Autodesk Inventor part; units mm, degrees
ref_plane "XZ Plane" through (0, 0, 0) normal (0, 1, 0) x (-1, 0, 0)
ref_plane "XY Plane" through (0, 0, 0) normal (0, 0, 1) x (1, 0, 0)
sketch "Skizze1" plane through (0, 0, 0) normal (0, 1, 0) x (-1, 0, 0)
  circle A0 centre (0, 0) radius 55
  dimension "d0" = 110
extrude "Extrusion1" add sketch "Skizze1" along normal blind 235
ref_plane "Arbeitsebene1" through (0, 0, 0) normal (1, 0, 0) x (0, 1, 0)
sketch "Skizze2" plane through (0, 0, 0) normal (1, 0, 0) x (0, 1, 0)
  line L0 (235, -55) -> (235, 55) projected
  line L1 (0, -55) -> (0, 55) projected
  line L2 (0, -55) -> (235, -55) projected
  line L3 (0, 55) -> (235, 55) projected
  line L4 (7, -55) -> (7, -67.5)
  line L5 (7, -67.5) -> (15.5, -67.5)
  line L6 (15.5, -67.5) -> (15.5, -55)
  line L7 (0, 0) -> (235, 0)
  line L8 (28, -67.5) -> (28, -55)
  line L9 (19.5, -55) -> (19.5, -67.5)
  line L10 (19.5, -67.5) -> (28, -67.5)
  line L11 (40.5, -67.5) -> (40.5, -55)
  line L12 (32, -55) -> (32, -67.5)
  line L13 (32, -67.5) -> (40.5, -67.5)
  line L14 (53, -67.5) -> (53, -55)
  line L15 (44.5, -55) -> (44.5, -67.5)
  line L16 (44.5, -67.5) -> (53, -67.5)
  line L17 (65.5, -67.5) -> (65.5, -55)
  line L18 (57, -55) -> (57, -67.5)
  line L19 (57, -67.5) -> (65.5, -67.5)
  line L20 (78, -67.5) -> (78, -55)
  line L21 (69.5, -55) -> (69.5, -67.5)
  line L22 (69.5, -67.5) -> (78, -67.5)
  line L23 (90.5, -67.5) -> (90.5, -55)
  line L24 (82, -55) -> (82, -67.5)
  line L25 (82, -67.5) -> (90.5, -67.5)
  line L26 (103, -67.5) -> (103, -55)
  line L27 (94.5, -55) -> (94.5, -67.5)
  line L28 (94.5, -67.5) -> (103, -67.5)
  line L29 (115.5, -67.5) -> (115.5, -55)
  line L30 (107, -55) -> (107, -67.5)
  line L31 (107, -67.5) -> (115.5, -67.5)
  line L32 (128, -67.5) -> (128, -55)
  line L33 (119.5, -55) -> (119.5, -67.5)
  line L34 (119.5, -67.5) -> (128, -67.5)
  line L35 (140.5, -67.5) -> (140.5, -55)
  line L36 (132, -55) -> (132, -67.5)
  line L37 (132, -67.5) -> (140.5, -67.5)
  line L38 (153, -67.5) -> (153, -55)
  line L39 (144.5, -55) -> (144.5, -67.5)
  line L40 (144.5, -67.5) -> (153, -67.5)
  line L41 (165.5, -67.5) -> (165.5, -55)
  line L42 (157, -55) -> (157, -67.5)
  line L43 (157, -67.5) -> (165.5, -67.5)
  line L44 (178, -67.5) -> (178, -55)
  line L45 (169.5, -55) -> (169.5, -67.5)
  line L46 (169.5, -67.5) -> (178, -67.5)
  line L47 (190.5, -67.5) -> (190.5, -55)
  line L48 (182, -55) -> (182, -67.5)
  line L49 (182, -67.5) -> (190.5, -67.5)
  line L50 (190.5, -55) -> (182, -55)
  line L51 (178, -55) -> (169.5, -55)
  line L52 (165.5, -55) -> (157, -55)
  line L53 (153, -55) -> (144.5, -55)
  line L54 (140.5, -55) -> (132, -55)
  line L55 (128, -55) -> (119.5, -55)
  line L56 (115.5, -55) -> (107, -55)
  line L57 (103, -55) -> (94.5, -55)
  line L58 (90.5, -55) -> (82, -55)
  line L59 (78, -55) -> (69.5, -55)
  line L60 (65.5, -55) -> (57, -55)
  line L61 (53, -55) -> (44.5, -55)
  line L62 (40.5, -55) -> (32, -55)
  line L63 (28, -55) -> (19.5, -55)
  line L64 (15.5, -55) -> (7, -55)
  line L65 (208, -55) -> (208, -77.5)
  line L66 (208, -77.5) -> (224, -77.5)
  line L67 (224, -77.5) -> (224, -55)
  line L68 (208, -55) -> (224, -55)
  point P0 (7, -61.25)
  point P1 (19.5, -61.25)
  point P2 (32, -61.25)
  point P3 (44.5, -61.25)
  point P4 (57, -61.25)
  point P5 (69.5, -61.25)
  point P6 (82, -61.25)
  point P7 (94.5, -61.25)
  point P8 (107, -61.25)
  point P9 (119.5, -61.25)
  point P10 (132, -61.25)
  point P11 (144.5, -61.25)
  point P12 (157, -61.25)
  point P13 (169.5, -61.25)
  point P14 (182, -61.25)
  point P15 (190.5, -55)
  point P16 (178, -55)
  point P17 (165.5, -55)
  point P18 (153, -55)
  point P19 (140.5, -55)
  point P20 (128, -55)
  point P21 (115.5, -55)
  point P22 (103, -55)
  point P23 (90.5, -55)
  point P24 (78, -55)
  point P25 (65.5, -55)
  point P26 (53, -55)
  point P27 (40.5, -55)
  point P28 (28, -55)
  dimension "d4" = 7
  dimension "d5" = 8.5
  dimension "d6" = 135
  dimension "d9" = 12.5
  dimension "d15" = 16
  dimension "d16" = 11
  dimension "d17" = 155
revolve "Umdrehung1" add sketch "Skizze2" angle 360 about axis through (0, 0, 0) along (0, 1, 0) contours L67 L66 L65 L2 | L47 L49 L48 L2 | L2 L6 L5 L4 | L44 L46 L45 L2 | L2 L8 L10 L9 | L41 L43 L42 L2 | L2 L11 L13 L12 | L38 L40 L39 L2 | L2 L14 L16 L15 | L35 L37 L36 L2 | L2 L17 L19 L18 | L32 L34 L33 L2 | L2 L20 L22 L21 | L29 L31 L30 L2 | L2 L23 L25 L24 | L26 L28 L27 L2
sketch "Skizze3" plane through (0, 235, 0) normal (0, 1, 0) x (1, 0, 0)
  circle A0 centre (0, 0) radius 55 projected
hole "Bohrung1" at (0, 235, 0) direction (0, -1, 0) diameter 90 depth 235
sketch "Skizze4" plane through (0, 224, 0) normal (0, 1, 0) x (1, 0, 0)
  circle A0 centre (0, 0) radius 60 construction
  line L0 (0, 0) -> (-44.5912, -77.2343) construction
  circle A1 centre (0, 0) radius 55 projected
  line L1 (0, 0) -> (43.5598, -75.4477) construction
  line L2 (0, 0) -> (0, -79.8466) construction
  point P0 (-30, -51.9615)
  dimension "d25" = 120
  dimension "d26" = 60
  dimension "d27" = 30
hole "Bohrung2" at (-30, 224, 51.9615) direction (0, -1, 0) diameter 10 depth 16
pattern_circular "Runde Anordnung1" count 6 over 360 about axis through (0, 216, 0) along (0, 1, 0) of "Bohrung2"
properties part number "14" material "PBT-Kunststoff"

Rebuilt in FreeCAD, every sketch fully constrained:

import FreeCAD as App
import Part
import Sketcher
Q = App.Units.Quantity

doc = App.newDocument("Part")
params = doc.addObject("Spreadsheet::Sheet", "Params")
for row, (alias, value) in enumerate([
    ("sketch1_diameter", "110 mm"),
    ("pad1_length", "235 mm"),
    ("sketch2_width", "16 mm"),
    ("sketch2_width2", "8.5 mm"),
    ("sketch2_height", "12.5 mm"),
    ("sketch2_height2", "22.5 mm"),
    ("revolution_angle", "360 deg"),
    ("sketch3_diameter", "90 mm"),
    ("hole_diameter", "90 mm"),
    ("hole_depth", "235 mm"),
    ("sketch4_diameter", "10 mm"),
    ("hole2_diameter", "10 mm"),
    ("hole2_depth", "16 mm"),
], start=1):
    params.set(f"A{row}", alias)
    params.set(f"B{row}", "=" + value)
    params.setAlias(f"B{row}", alias)

body = doc.addObject("PartDesign::Body", "Body")

# Sketch on XZ plane
sketch1 = body.newObject("Sketcher::SketchObject", "Sketch")
sketch1.AttachmentSupport = (doc.getObject("XZ_Plane"), [""])
sketch1.MapMode = "FlatFace"
sketch1.addGeometry(Part.Circle(App.Vector(0, 0, 0), App.Vector(0, 0, 1), 55), False)
sketch1.addConstraint([
    Sketcher.Constraint("Coincident", 0, 3, -1, 1),
    Sketcher.Constraint("Diameter", 0, Q("110 mm")),
])
sketch1.setExpression("Constraints[1]", "Params.sketch1_diameter")
pad1 = body.newObject("PartDesign::Pad", "Pad")
pad1.Profile = sketch1
pad1.setExpression("Length", "Params.pad1_length")
pad1.Reversed = True

# Sketch on YZ plane
sketch2 = body.newObject("Sketcher::SketchObject", "Sketch001")
sketch2.AttachmentSupport = (doc.getObject("YZ_Plane"), [""])
sketch2.MapMode = "FlatFace"
sketch2.addGeometry([
    Part.LineSegment(App.Vector(224, -78, 0), App.Vector(224, -55, 0)),  # 0
    Part.LineSegment(App.Vector(224, -55, 0), App.Vector(208, -55, 0)),  # 1
    Part.LineSegment(App.Vector(208, -55, 0), App.Vector(208, -78, 0)),  # 2
    Part.LineSegment(App.Vector(208, -78, 0), App.Vector(224, -78, 0)),  # 3
    Part.LineSegment(App.Vector(190, -68, 0), App.Vector(190, -55, 0)),  # 4
    Part.LineSegment(App.Vector(190, -55, 0), App.Vector(182, -55, 0)),  # 5
    Part.LineSegment(App.Vector(182, -55, 0), App.Vector(182, -68, 0)),  # 6
    Part.LineSegment(App.Vector(182, -68, 0), App.Vector(190, -68, 0)),  # 7
    Part.LineSegment(App.Vector(16, -55, 0), App.Vector(7, -55, 0)),  # 8
    Part.LineSegment(App.Vector(7, -55, 0), App.Vector(7, -68, 0)),  # 9
    Part.LineSegment(App.Vector(7, -68, 0), App.Vector(16, -68, 0)),  # 10
    Part.LineSegment(App.Vector(16, -68, 0), App.Vector(16, -55, 0)),  # 11
    Part.LineSegment(App.Vector(178, -68, 0), App.Vector(178, -55, 0)),  # 12
    Part.LineSegment(App.Vector(178, -55, 0), App.Vector(170, -55, 0)),  # 13
    Part.LineSegment(App.Vector(170, -55, 0), App.Vector(170, -68, 0)),  # 14
    Part.LineSegment(App.Vector(170, -68, 0), App.Vector(178, -68, 0)),  # 15
    Part.LineSegment(App.Vector(28, -55, 0), App.Vector(20, -55, 0)),  # 16
    Part.LineSegment(App.Vector(20, -55, 0), App.Vector(20, -68, 0)),  # 17
    Part.LineSegment(App.Vector(20, -68, 0), App.Vector(28, -68, 0)),  # 18
    Part.LineSegment(App.Vector(28, -68, 0), App.Vector(28, -55, 0)),  # 19
    Part.LineSegment(App.Vector(166, -68, 0), App.Vector(166, -55, 0)),  # 20
    Part.LineSegment(App.Vector(166, -55, 0), App.Vector(157, -55, 0)),  # 21
    Part.LineSegment(App.Vector(157, -55, 0), App.Vector(157, -68, 0)),  # 22
    Part.LineSegment(App.Vector(157, -68, 0), App.Vector(166, -68, 0)),  # 23
    Part.LineSegment(App.Vector(40, -55, 0), App.Vector(32, -55, 0)),  # 24
    Part.LineSegment(App.Vector(32, -55, 0), App.Vector(32, -68, 0)),  # 25
    Part.LineSegment(App.Vector(32, -68, 0), App.Vector(40, -68, 0)),  # 26
    Part.LineSegment(App.Vector(40, -68, 0), App.Vector(40, -55, 0)),  # 27
    Part.LineSegment(App.Vector(153, -68, 0), App.Vector(153, -55, 0)),  # 28
    Part.LineSegment(App.Vector(153, -55, 0), App.Vector(144, -55, 0)),  # 29
    Part.LineSegment(App.Vector(144, -55, 0), App.Vector(144, -68, 0)),  # 30
    Part.LineSegment(App.Vector(144, -68, 0), App.Vector(153, -68, 0)),  # 31
    Part.LineSegment(App.Vector(53, -55, 0), App.Vector(44, -55, 0)),  # 32
    Part.LineSegment(App.Vector(44, -55, 0), App.Vector(44, -68, 0)),  # 33
    Part.LineSegment(App.Vector(44, -68, 0), App.Vector(53, -68, 0)),  # 34
    Part.LineSegment(App.Vector(53, -68, 0), App.Vector(53, -55, 0)),  # 35
    Part.LineSegment(App.Vector(140, -68, 0), App.Vector(140, -55, 0)),  # 36
    Part.LineSegment(App.Vector(140, -55, 0), App.Vector(132, -55, 0)),  # 37
    Part.LineSegment(App.Vector(132, -55, 0), App.Vector(132, -68, 0)),  # 38
    Part.LineSegment(App.Vector(132, -68, 0), App.Vector(140, -68, 0)),  # 39
    Part.LineSegment(App.Vector(66, -55, 0), App.Vector(57, -55, 0)),  # 40
    Part.LineSegment(App.Vector(57, -55, 0), App.Vector(57, -68, 0)),  # 41
    Part.LineSegment(App.Vector(57, -68, 0), App.Vector(66, -68, 0)),  # 42
    Part.LineSegment(App.Vector(66, -68, 0), App.Vector(66, -55, 0)),  # 43
    Part.LineSegment(App.Vector(128, -68, 0), App.Vector(128, -55, 0)),  # 44
    Part.LineSegment(App.Vector(128, -55, 0), App.Vector(120, -55, 0)),  # 45
    Part.LineSegment(App.Vector(120, -55, 0), App.Vector(120, -68, 0)),  # 46
    Part.LineSegment(App.Vector(120, -68, 0), App.Vector(128, -68, 0)),  # 47
    Part.LineSegment(App.Vector(78, -55, 0), App.Vector(70, -55, 0)),  # 48
    Part.LineSegment(App.Vector(70, -55, 0), App.Vector(70, -68, 0)),  # 49
    Part.LineSegment(App.Vector(70, -68, 0), App.Vector(78, -68, 0)),  # 50
    Part.LineSegment(App.Vector(78, -68, 0), App.Vector(78, -55, 0)),  # 51
    Part.LineSegment(App.Vector(116, -68, 0), App.Vector(116, -55, 0)),  # 52
    Part.LineSegment(App.Vector(116, -55, 0), App.Vector(107, -55, 0)),  # 53
    Part.LineSegment(App.Vector(107, -55, 0), App.Vector(107, -68, 0)),  # 54
    Part.LineSegment(App.Vector(107, -68, 0), App.Vector(116, -68, 0)),  # 55
    Part.LineSegment(App.Vector(90, -55, 0), App.Vector(82, -55, 0)),  # 56
    Part.LineSegment(App.Vector(82, -55, 0), App.Vector(82, -68, 0)),  # 57
    Part.LineSegment(App.Vector(82, -68, 0), App.Vector(90, -68, 0)),  # 58
    Part.LineSegment(App.Vector(90, -68, 0), App.Vector(90, -55, 0)),  # 59
    Part.LineSegment(App.Vector(103, -68, 0), App.Vector(103, -55, 0)),  # 60
    Part.LineSegment(App.Vector(103, -55, 0), App.Vector(94, -55, 0)),  # 61
    Part.LineSegment(App.Vector(94, -55, 0), App.Vector(94, -68, 0)),  # 62
    Part.LineSegment(App.Vector(94, -68, 0), App.Vector(103, -68, 0)),  # 63
], False)
sketch2.addConstraint([
    Sketcher.Constraint("Coincident", 0, 2, 1, 1),
    Sketcher.Constraint("Coincident", 1, 2, 2, 1),
    Sketcher.Constraint("Coincident", 2, 2, 3, 1),
    Sketcher.Constraint("Coincident", 3, 2, 0, 1),
    Sketcher.Constraint("Coincident", 4, 2, 5, 1),
    Sketcher.Constraint("Coincident", 5, 2, 6, 1),
    Sketcher.Constraint("Coincident", 6, 2, 7, 1),
    Sketcher.Constraint("Coincident", 7, 2, 4, 1),
    Sketcher.Constraint("Coincident", 8, 2, 9, 1),
    Sketcher.Constraint("Coincident", 9, 2, 10, 1),
    Sketcher.Constraint("Coincident", 10, 2, 11, 1),
    Sketcher.Constraint("Coincident", 11, 2, 8, 1),
    Sketcher.Constraint("Coincident", 12, 2, 13, 1),
    Sketcher.Constraint("Coincident", 13, 2, 14, 1),
    Sketcher.Constraint("Coincident", 14, 2, 15, 1),
    Sketcher.Constraint("Coincident", 15, 2, 12, 1),
    Sketcher.Constraint("Coincident", 16, 2, 17, 1),
    Sketcher.Constraint("Coincident", 17, 2, 18, 1),
    Sketcher.Constraint("Coincident", 18, 2, 19, 1),
    Sketcher.Constraint("Coincident", 19, 2, 16, 1),
    Sketcher.Constraint("Coincident", 20, 2, 21, 1),
    Sketcher.Constraint("Coincident", 21, 2, 22, 1),
    Sketcher.Constraint("Coincident", 22, 2, 23, 1),
    Sketcher.Constraint("Coincident", 23, 2, 20, 1),
    Sketcher.Constraint("Coincident", 24, 2, 25, 1),
    Sketcher.Constraint("Coincident", 25, 2, 26, 1),
    Sketcher.Constraint("Coincident", 26, 2, 27, 1),
    Sketcher.Constraint("Coincident", 27, 2, 24, 1),
    Sketcher.Constraint("Coincident", 28, 2, 29, 1),
    Sketcher.Constraint("Coincident", 29, 2, 30, 1),
    Sketcher.Constraint("Coincident", 30, 2, 31, 1),
    Sketcher.Constraint("Coincident", 31, 2, 28, 1),
    Sketcher.Constraint("Coincident", 32, 2, 33, 1),
    Sketcher.Constraint("Coincident", 33, 2, 34, 1),
    Sketcher.Constraint("Coincident", 34, 2, 35, 1),
    Sketcher.Constraint("Coincident", 35, 2, 32, 1),
    Sketcher.Constraint("Coincident", 36, 2, 37, 1),
    Sketcher.Constraint("Coincident", 37, 2, 38, 1),
    Sketcher.Constraint("Coincident", 38, 2, 39, 1),
    Sketcher.Constraint("Coincident", 39, 2, 36, 1),
    Sketcher.Constraint("Coincident", 40, 2, 41, 1),
    Sketcher.Constraint("Coincident", 41, 2, 42, 1),
    Sketcher.Constraint("Coincident", 42, 2, 43, 1),
    Sketcher.Constraint("Coincident", 43, 2, 40, 1),
    Sketcher.Constraint("Coincident", 44, 2, 45, 1),
    Sketcher.Constraint("Coincident", 45, 2, 46, 1),
    Sketcher.Constraint("Coincident", 46, 2, 47, 1),
    Sketcher.Constraint("Coincident", 47, 2, 44, 1),
    Sketcher.Constraint("Coincident", 48, 2, 49, 1),
    Sketcher.Constraint("Coincident", 49, 2, 50, 1),
    Sketcher.Constraint("Coincident", 50, 2, 51, 1),
    Sketcher.Constraint("Coincident", 51, 2, 48, 1),
    Sketcher.Constraint("Coincident", 52, 2, 53, 1),
    Sketcher.Constraint("Coincident", 53, 2, 54, 1),
    Sketcher.Constraint("Coincident", 54, 2, 55, 1),
    Sketcher.Constraint("Coincident", 55, 2, 52, 1),
    Sketcher.Constraint("Coincident", 56, 2, 57, 1),
    Sketcher.Constraint("Coincident", 57, 2, 58, 1),
    Sketcher.Constraint("Coincident", 58, 2, 59, 1),
    Sketcher.Constraint("Coincident", 59, 2, 56, 1),
    Sketcher.Constraint("Coincident", 60, 2, 61, 1),
    Sketcher.Constraint("Coincident", 61, 2, 62, 1),
    Sketcher.Constraint("Coincident", 62, 2, 63, 1),
    Sketcher.Constraint("Coincident", 63, 2, 60, 1),
    Sketcher.Constraint("Vertical", 0),
    Sketcher.Constraint("Horizontal", 1),
    Sketcher.Constraint("Vertical", 2),
    Sketcher.Constraint("Horizontal", 3),
    Sketcher.Constraint("Vertical", 4),
    Sketcher.Constraint("Horizontal", 5),
    Sketcher.Constraint("Vertical", 6),
    Sketcher.Constraint("Horizontal", 7),
    Sketcher.Constraint("Horizontal", 8),
    Sketcher.Constraint("Vertical", 9),
    Sketcher.Constraint("Horizontal", 10),
    Sketcher.Constraint("Vertical", 11),
    Sketcher.Constraint("Vertical", 12),
    Sketcher.Constraint("Horizontal", 13),
    Sketcher.Constraint("Vertical", 14),
    Sketcher.Constraint("Horizontal", 15),
    Sketcher.Constraint("Horizontal", 16),
    Sketcher.Constraint("Vertical", 17),
    Sketcher.Constraint("Horizontal", 18),
    Sketcher.Constraint("Vertical", 19),
    Sketcher.Constraint("Vertical", 20),
    Sketcher.Constraint("Horizontal", 21),
    Sketcher.Constraint("Vertical", 22),
    Sketcher.Constraint("Horizontal", 23),
    Sketcher.Constraint("Horizontal", 24),
    Sketcher.Constraint("Vertical", 25),
    Sketcher.Constraint("Horizontal", 26),
    Sketcher.Constraint("Vertical", 27),
    Sketcher.Constraint("Vertical", 28),
    Sketcher.Constraint("Horizontal", 29),
    Sketcher.Constraint("Vertical", 30),
    Sketcher.Constraint("Horizontal", 31),
    Sketcher.Constraint("Horizontal", 32),
    Sketcher.Constraint("Vertical", 33),
    Sketcher.Constraint("Horizontal", 34),
    Sketcher.Constraint("Vertical", 35),
    Sketcher.Constraint("Vertical", 36),
    Sketcher.Constraint("Horizontal", 37),
    Sketcher.Constraint("Vertical", 38),
    Sketcher.Constraint("Horizontal", 39),
    Sketcher.Constraint("Horizontal", 40),
    Sketcher.Constraint("Vertical", 41),
    Sketcher.Constraint("Horizontal", 42),
    Sketcher.Constraint("Vertical", 43),
    Sketcher.Constraint("Vertical", 44),
    Sketcher.Constraint("Horizontal", 45),
    Sketcher.Constraint("Vertical", 46),
    Sketcher.Constraint("Horizontal", 47),
    Sketcher.Constraint("Horizontal", 48),
    Sketcher.Constraint("Vertical", 49),
    Sketcher.Constraint("Horizontal", 50),
    Sketcher.Constraint("Vertical", 51),
    Sketcher.Constraint("Vertical", 52),
    Sketcher.Constraint("Horizontal", 53),
    Sketcher.Constraint("Vertical", 54),
    Sketcher.Constraint("Horizontal", 55),
    Sketcher.Constraint("Horizontal", 56),
    Sketcher.Constraint("Vertical", 57),
    Sketcher.Constraint("Horizontal", 58),
    Sketcher.Constraint("Vertical", 59),
    Sketcher.Constraint("Vertical", 60),
    Sketcher.Constraint("Horizontal", 61),
    Sketcher.Constraint("Vertical", 62),
    Sketcher.Constraint("Horizontal", 63),
    Sketcher.Constraint("Horizontal", 1, 2, 4, 2),
    Sketcher.Constraint("Horizontal", 5, 2, 8, 2),
    Sketcher.Constraint("Horizontal", 7, 2, 9, 2),
    Sketcher.Constraint("Horizontal", 11, 2, 12, 2),
    Sketcher.Constraint("Horizontal", 10, 2, 14, 2),
    Sketcher.Constraint("Horizontal", 13, 2, 16, 2),
    Sketcher.Constraint("Horizontal", 15, 2, 17, 2),
    Sketcher.Constraint("Horizontal", 19, 2, 20, 2),
    Sketcher.Constraint("Horizontal", 18, 2, 22, 2),
    Sketcher.Constraint("Horizontal", 21, 2, 24, 2),
    Sketcher.Constraint("Horizontal", 23, 2, 25, 2),
    Sketcher.Constraint("Horizontal", 27, 2, 28, 2),
    Sketcher.Constraint("Horizontal", 26, 2, 30, 2),
    Sketcher.Constraint("Horizontal", 29, 2, 32, 2),
    Sketcher.Constraint("Horizontal", 31, 2, 33, 2),
    Sketcher.Constraint("Horizontal", 35, 2, 36, 2),
    Sketcher.Constraint("Horizontal", 34, 2, 38, 2),
    Sketcher.Constraint("Horizontal", 37, 2, 40, 2),
    Sketcher.Constraint("Horizontal", 39, 2, 41, 2),
    Sketcher.Constraint("Horizontal", 43, 2, 44, 2),
    Sketcher.Constraint("Horizontal", 42, 2, 46, 2),
    Sketcher.Constraint("Horizontal", 45, 2, 48, 2),
    Sketcher.Constraint("Horizontal", 47, 2, 49, 2),
    Sketcher.Constraint("Horizontal", 51, 2, 52, 2),
    Sketcher.Constraint("Horizontal", 50, 2, 54, 2),
    Sketcher.Constraint("Horizontal", 53, 2, 56, 2),
    Sketcher.Constraint("Horizontal", 55, 2, 57, 2),
    Sketcher.Constraint("Horizontal", 59, 2, 60, 2),
    Sketcher.Constraint("Horizontal", 58, 2, 62, 2),
    Sketcher.Constraint("Equal", 7, 8),
    Sketcher.Constraint("Equal", 10, 13),
    Sketcher.Constraint("Equal", 15, 16),
    Sketcher.Constraint("Equal", 18, 21),
    Sketcher.Constraint("Equal", 23, 24),
    Sketcher.Constraint("Equal", 26, 29),
    Sketcher.Constraint("Equal", 31, 32),
    Sketcher.Constraint("Equal", 34, 37),
    Sketcher.Constraint("Equal", 39, 40),
    Sketcher.Constraint("Equal", 42, 45),
    Sketcher.Constraint("Equal", 47, 48),
    Sketcher.Constraint("Equal", 50, 53),
    Sketcher.Constraint("Equal", 55, 56),
    Sketcher.Constraint("Equal", 58, 61),
    Sketcher.Constraint("DistanceX", 1, 2, 1, 1, Q("16 mm")),
    Sketcher.Constraint("DistanceX", 5, 2, 5, 1, Q("8.5 mm")),
    Sketcher.Constraint("DistanceY", 4, 1, 4, 2, Q("12.5 mm")),
    Sketcher.Constraint("DistanceX", -1, 1, 8, 2, Q("7 mm")),
    Sketcher.Constraint("DistanceY", 0, 1, 0, 2, Q("22.5 mm")),
    Sketcher.Constraint("DistanceX", -1, 1, 0, 2, Q("224 mm")),
    Sketcher.Constraint("DistanceY", 0, 2, -1, 1, Q("55 mm")),
    Sketcher.Constraint("DistanceX", -1, 1, 5, 2, Q("182 mm")),
    Sketcher.Constraint("DistanceX", -1, 1, 12, 2, Q("178 mm")),
    Sketcher.Constraint("DistanceX", -1, 1, 18, 2, Q("28 mm")),
    Sketcher.Constraint("DistanceX", -1, 1, 21, 2, Q("157 mm")),
    Sketcher.Constraint("DistanceX", -1, 1, 24, 2, Q("32 mm")),
    Sketcher.Constraint("DistanceX", -1, 1, 28, 2, Q("153 mm")),
    Sketcher.Constraint("DistanceX", -1, 1, 34, 2, Q("53 mm")),
    Sketcher.Constraint("DistanceX", -1, 1, 37, 2, Q("132 mm")),
    Sketcher.Constraint("DistanceX", -1, 1, 40, 2, Q("57 mm")),
    Sketcher.Constraint("DistanceX", -1, 1, 44, 2, Q("128 mm")),
    Sketcher.Constraint("DistanceX", -1, 1, 50, 2, Q("78 mm")),
    Sketcher.Constraint("DistanceX", -1, 1, 53, 2, Q("107 mm")),
    Sketcher.Constraint("DistanceX", -1, 1, 56, 2, Q("82 mm")),
    Sketcher.Constraint("DistanceX", -1, 1, 60, 2, Q("103 mm")),
])
sketch2.setExpression("Constraints[171]", "Params.sketch2_width")
sketch2.setExpression("Constraints[172]", "Params.sketch2_width2")
sketch2.setExpression("Constraints[173]", "Params.sketch2_height")
sketch2.setExpression("Constraints[175]", "Params.sketch2_height2")
revolution = body.newObject("PartDesign::Revolution", "Revolution")
revolution.Profile = sketch2
revolution.ReferenceAxis = (sketch2, ["H_Axis"])
revolution.setExpression("Angle", "Params.revolution_angle")

# Sketch on XZ plane
sketch3 = body.newObject("Sketcher::SketchObject", "Sketch002")
sketch3.AttachmentSupport = (doc.getObject("XZ_Plane"), [""])
sketch3.MapMode = "FlatFace"
sketch3.AttachmentOffset = App.Placement(App.Vector(0, 0, -235), App.Rotation())
sketch3.addGeometry(Part.Circle(App.Vector(0, 0, 0), App.Vector(0, 0, 1), 45), False)
sketch3.addConstraint([
    Sketcher.Constraint("Coincident", 0, 3, -1, 1),
    Sketcher.Constraint("Diameter", 0, Q("90 mm")),
])
sketch3.setExpression("Constraints[1]", "Params.sketch3_diameter")
doc.recompute()
hole = body.newObject("PartDesign::Hole", "Hole")
hole.Profile = sketch3
hole.ThreadType = "None"
hole.setExpression("Diameter", "Params.hole_diameter")
hole.DepthType = "Dimension"
hole.setExpression("Depth", "Params.hole_depth")
hole.DrillPoint = "Flat"
hole.Reversed = True

# Sketch on XZ plane
sketch4 = body.newObject("Sketcher::SketchObject", "Sketch003")
sketch4.AttachmentSupport = (doc.getObject("XZ_Plane"), [""])
sketch4.MapMode = "FlatFace"
sketch4.AttachmentOffset = App.Placement(App.Vector(0, 0, -224), App.Rotation())
sketch4.addGeometry(Part.Circle(App.Vector(-30, 52, 0), App.Vector(0, 0, 1), 5), False)
sketch4.addConstraint([
    Sketcher.Constraint("Diameter", 0, Q("10 mm")),
    Sketcher.Constraint("DistanceX", 0, 3, -1, 1, Q("30 mm")),
    Sketcher.Constraint("DistanceY", -1, 1, 0, 3, Q("51.9615 mm")),
])
sketch4.setExpression("Constraints[0]", "Params.sketch4_diameter")
doc.recompute()
hole2 = body.newObject("PartDesign::Hole", "Hole001")
hole2.Profile = sketch4
hole2.ThreadType = "None"
hole2.setExpression("Diameter", "Params.hole2_diameter")
hole2.DepthType = "Dimension"
hole2.setExpression("Depth", "Params.hole2_depth")
hole2.DrillPoint = "Flat"
hole2.Reversed = True
doc.recompute()

polarpattern = body.newObject("PartDesign::PolarPattern", "PolarPattern")
polarpattern.Originals = [hole2]
polarpattern.Axis = (doc.getObject("Y_Axis"), [""])
polarpattern.Angle = 360
polarpattern.Occurrences = 6
body.Tip = polarpattern

doc.recompute()
